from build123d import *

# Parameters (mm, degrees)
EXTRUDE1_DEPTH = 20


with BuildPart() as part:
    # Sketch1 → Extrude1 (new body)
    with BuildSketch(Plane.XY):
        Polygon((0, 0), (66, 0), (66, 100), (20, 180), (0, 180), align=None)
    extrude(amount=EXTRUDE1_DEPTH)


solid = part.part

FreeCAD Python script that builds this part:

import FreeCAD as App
import Part
import Sketcher

V = App.Vector
Q = App.Units.Quantity


def add_polygon(sketch, points):
    """Adds a closed chain of lines whose ends are joined by coincident constraints."""
    first, n = sketch.GeometryCount, len(points)
    for a, b in zip(points, points[1:] + points[:1]):
        sketch.addGeometry(Part.LineSegment(App.Vector(*a, 0), App.Vector(*b, 0)), False)
    for i in range(n):
        sketch.addConstraint(Sketcher.Constraint("Coincident", first + i, 2, first + (i + 1) % n, 1))

doc = App.newDocument("Part")
params = doc.addObject("Spreadsheet::Sheet", "Params")
for row, (alias, value) in enumerate([
    ("sketch1_width", "66 mm"),
    ("sketch1_width2", "20 mm"),
    ("sketch1_height", "100 mm"),
    ("sketch1_height2", "180 mm"),
    ("pad1_length", "20 mm"),
], start=1):
    params.set(f"A{row}", alias)
    params.set(f"B{row}", "=" + value)
    params.setAlias(f"B{row}", alias)

body = doc.addObject("PartDesign::Body", "Body")

# Sketch on XY plane
sketch1 = body.newObject("Sketcher::SketchObject", "Sketch")
sketch1.AttachmentSupport = (doc.getObject("XY_Plane"), [""])
sketch1.MapMode = "FlatFace"
add_polygon(sketch1, [(0, 0), (66, 0), (66, 100), (20, 180), (0, 180)])  # lines 0-4
sketch1.addConstraint(Sketcher.Constraint("Horizontal", 0))
sketch1.addConstraint(Sketcher.Constraint("Vertical", 1))
sketch1.addConstraint(Sketcher.Constraint("Horizontal", 3))
sketch1.addConstraint(Sketcher.Constraint("Vertical", 4))
sketch1.addConstraint(Sketcher.Constraint("Coincident", 4, 2, -1, 1))
sketch1.addConstraint(Sketcher.Constraint("DistanceX", 0, 1, 0, 2, Q("66 mm")))
sketch1.addConstraint(Sketcher.Constraint("DistanceX", 3, 2, 3, 1, Q("20 mm")))
sketch1.addConstraint(Sketcher.Constraint("DistanceY", 1, 1, 1, 2, Q("100 mm")))
sketch1.addConstraint(Sketcher.Constraint("DistanceY", 4, 2, 4, 1, Q("180 mm")))
sketch1.setExpression("Constraints[10]", "Params.sketch1_width")
sketch1.setExpression("Constraints[11]", "Params.sketch1_width2")
sketch1.setExpression("Constraints[12]", "Params.sketch1_height")
sketch1.setExpression("Constraints[13]", "Params.sketch1_height2")
pad1 = body.newObject("PartDesign::Pad", "Pad")
pad1.Profile = sketch1
pad1.setExpression("Length", "Params.pad1_length")

doc.recompute()
